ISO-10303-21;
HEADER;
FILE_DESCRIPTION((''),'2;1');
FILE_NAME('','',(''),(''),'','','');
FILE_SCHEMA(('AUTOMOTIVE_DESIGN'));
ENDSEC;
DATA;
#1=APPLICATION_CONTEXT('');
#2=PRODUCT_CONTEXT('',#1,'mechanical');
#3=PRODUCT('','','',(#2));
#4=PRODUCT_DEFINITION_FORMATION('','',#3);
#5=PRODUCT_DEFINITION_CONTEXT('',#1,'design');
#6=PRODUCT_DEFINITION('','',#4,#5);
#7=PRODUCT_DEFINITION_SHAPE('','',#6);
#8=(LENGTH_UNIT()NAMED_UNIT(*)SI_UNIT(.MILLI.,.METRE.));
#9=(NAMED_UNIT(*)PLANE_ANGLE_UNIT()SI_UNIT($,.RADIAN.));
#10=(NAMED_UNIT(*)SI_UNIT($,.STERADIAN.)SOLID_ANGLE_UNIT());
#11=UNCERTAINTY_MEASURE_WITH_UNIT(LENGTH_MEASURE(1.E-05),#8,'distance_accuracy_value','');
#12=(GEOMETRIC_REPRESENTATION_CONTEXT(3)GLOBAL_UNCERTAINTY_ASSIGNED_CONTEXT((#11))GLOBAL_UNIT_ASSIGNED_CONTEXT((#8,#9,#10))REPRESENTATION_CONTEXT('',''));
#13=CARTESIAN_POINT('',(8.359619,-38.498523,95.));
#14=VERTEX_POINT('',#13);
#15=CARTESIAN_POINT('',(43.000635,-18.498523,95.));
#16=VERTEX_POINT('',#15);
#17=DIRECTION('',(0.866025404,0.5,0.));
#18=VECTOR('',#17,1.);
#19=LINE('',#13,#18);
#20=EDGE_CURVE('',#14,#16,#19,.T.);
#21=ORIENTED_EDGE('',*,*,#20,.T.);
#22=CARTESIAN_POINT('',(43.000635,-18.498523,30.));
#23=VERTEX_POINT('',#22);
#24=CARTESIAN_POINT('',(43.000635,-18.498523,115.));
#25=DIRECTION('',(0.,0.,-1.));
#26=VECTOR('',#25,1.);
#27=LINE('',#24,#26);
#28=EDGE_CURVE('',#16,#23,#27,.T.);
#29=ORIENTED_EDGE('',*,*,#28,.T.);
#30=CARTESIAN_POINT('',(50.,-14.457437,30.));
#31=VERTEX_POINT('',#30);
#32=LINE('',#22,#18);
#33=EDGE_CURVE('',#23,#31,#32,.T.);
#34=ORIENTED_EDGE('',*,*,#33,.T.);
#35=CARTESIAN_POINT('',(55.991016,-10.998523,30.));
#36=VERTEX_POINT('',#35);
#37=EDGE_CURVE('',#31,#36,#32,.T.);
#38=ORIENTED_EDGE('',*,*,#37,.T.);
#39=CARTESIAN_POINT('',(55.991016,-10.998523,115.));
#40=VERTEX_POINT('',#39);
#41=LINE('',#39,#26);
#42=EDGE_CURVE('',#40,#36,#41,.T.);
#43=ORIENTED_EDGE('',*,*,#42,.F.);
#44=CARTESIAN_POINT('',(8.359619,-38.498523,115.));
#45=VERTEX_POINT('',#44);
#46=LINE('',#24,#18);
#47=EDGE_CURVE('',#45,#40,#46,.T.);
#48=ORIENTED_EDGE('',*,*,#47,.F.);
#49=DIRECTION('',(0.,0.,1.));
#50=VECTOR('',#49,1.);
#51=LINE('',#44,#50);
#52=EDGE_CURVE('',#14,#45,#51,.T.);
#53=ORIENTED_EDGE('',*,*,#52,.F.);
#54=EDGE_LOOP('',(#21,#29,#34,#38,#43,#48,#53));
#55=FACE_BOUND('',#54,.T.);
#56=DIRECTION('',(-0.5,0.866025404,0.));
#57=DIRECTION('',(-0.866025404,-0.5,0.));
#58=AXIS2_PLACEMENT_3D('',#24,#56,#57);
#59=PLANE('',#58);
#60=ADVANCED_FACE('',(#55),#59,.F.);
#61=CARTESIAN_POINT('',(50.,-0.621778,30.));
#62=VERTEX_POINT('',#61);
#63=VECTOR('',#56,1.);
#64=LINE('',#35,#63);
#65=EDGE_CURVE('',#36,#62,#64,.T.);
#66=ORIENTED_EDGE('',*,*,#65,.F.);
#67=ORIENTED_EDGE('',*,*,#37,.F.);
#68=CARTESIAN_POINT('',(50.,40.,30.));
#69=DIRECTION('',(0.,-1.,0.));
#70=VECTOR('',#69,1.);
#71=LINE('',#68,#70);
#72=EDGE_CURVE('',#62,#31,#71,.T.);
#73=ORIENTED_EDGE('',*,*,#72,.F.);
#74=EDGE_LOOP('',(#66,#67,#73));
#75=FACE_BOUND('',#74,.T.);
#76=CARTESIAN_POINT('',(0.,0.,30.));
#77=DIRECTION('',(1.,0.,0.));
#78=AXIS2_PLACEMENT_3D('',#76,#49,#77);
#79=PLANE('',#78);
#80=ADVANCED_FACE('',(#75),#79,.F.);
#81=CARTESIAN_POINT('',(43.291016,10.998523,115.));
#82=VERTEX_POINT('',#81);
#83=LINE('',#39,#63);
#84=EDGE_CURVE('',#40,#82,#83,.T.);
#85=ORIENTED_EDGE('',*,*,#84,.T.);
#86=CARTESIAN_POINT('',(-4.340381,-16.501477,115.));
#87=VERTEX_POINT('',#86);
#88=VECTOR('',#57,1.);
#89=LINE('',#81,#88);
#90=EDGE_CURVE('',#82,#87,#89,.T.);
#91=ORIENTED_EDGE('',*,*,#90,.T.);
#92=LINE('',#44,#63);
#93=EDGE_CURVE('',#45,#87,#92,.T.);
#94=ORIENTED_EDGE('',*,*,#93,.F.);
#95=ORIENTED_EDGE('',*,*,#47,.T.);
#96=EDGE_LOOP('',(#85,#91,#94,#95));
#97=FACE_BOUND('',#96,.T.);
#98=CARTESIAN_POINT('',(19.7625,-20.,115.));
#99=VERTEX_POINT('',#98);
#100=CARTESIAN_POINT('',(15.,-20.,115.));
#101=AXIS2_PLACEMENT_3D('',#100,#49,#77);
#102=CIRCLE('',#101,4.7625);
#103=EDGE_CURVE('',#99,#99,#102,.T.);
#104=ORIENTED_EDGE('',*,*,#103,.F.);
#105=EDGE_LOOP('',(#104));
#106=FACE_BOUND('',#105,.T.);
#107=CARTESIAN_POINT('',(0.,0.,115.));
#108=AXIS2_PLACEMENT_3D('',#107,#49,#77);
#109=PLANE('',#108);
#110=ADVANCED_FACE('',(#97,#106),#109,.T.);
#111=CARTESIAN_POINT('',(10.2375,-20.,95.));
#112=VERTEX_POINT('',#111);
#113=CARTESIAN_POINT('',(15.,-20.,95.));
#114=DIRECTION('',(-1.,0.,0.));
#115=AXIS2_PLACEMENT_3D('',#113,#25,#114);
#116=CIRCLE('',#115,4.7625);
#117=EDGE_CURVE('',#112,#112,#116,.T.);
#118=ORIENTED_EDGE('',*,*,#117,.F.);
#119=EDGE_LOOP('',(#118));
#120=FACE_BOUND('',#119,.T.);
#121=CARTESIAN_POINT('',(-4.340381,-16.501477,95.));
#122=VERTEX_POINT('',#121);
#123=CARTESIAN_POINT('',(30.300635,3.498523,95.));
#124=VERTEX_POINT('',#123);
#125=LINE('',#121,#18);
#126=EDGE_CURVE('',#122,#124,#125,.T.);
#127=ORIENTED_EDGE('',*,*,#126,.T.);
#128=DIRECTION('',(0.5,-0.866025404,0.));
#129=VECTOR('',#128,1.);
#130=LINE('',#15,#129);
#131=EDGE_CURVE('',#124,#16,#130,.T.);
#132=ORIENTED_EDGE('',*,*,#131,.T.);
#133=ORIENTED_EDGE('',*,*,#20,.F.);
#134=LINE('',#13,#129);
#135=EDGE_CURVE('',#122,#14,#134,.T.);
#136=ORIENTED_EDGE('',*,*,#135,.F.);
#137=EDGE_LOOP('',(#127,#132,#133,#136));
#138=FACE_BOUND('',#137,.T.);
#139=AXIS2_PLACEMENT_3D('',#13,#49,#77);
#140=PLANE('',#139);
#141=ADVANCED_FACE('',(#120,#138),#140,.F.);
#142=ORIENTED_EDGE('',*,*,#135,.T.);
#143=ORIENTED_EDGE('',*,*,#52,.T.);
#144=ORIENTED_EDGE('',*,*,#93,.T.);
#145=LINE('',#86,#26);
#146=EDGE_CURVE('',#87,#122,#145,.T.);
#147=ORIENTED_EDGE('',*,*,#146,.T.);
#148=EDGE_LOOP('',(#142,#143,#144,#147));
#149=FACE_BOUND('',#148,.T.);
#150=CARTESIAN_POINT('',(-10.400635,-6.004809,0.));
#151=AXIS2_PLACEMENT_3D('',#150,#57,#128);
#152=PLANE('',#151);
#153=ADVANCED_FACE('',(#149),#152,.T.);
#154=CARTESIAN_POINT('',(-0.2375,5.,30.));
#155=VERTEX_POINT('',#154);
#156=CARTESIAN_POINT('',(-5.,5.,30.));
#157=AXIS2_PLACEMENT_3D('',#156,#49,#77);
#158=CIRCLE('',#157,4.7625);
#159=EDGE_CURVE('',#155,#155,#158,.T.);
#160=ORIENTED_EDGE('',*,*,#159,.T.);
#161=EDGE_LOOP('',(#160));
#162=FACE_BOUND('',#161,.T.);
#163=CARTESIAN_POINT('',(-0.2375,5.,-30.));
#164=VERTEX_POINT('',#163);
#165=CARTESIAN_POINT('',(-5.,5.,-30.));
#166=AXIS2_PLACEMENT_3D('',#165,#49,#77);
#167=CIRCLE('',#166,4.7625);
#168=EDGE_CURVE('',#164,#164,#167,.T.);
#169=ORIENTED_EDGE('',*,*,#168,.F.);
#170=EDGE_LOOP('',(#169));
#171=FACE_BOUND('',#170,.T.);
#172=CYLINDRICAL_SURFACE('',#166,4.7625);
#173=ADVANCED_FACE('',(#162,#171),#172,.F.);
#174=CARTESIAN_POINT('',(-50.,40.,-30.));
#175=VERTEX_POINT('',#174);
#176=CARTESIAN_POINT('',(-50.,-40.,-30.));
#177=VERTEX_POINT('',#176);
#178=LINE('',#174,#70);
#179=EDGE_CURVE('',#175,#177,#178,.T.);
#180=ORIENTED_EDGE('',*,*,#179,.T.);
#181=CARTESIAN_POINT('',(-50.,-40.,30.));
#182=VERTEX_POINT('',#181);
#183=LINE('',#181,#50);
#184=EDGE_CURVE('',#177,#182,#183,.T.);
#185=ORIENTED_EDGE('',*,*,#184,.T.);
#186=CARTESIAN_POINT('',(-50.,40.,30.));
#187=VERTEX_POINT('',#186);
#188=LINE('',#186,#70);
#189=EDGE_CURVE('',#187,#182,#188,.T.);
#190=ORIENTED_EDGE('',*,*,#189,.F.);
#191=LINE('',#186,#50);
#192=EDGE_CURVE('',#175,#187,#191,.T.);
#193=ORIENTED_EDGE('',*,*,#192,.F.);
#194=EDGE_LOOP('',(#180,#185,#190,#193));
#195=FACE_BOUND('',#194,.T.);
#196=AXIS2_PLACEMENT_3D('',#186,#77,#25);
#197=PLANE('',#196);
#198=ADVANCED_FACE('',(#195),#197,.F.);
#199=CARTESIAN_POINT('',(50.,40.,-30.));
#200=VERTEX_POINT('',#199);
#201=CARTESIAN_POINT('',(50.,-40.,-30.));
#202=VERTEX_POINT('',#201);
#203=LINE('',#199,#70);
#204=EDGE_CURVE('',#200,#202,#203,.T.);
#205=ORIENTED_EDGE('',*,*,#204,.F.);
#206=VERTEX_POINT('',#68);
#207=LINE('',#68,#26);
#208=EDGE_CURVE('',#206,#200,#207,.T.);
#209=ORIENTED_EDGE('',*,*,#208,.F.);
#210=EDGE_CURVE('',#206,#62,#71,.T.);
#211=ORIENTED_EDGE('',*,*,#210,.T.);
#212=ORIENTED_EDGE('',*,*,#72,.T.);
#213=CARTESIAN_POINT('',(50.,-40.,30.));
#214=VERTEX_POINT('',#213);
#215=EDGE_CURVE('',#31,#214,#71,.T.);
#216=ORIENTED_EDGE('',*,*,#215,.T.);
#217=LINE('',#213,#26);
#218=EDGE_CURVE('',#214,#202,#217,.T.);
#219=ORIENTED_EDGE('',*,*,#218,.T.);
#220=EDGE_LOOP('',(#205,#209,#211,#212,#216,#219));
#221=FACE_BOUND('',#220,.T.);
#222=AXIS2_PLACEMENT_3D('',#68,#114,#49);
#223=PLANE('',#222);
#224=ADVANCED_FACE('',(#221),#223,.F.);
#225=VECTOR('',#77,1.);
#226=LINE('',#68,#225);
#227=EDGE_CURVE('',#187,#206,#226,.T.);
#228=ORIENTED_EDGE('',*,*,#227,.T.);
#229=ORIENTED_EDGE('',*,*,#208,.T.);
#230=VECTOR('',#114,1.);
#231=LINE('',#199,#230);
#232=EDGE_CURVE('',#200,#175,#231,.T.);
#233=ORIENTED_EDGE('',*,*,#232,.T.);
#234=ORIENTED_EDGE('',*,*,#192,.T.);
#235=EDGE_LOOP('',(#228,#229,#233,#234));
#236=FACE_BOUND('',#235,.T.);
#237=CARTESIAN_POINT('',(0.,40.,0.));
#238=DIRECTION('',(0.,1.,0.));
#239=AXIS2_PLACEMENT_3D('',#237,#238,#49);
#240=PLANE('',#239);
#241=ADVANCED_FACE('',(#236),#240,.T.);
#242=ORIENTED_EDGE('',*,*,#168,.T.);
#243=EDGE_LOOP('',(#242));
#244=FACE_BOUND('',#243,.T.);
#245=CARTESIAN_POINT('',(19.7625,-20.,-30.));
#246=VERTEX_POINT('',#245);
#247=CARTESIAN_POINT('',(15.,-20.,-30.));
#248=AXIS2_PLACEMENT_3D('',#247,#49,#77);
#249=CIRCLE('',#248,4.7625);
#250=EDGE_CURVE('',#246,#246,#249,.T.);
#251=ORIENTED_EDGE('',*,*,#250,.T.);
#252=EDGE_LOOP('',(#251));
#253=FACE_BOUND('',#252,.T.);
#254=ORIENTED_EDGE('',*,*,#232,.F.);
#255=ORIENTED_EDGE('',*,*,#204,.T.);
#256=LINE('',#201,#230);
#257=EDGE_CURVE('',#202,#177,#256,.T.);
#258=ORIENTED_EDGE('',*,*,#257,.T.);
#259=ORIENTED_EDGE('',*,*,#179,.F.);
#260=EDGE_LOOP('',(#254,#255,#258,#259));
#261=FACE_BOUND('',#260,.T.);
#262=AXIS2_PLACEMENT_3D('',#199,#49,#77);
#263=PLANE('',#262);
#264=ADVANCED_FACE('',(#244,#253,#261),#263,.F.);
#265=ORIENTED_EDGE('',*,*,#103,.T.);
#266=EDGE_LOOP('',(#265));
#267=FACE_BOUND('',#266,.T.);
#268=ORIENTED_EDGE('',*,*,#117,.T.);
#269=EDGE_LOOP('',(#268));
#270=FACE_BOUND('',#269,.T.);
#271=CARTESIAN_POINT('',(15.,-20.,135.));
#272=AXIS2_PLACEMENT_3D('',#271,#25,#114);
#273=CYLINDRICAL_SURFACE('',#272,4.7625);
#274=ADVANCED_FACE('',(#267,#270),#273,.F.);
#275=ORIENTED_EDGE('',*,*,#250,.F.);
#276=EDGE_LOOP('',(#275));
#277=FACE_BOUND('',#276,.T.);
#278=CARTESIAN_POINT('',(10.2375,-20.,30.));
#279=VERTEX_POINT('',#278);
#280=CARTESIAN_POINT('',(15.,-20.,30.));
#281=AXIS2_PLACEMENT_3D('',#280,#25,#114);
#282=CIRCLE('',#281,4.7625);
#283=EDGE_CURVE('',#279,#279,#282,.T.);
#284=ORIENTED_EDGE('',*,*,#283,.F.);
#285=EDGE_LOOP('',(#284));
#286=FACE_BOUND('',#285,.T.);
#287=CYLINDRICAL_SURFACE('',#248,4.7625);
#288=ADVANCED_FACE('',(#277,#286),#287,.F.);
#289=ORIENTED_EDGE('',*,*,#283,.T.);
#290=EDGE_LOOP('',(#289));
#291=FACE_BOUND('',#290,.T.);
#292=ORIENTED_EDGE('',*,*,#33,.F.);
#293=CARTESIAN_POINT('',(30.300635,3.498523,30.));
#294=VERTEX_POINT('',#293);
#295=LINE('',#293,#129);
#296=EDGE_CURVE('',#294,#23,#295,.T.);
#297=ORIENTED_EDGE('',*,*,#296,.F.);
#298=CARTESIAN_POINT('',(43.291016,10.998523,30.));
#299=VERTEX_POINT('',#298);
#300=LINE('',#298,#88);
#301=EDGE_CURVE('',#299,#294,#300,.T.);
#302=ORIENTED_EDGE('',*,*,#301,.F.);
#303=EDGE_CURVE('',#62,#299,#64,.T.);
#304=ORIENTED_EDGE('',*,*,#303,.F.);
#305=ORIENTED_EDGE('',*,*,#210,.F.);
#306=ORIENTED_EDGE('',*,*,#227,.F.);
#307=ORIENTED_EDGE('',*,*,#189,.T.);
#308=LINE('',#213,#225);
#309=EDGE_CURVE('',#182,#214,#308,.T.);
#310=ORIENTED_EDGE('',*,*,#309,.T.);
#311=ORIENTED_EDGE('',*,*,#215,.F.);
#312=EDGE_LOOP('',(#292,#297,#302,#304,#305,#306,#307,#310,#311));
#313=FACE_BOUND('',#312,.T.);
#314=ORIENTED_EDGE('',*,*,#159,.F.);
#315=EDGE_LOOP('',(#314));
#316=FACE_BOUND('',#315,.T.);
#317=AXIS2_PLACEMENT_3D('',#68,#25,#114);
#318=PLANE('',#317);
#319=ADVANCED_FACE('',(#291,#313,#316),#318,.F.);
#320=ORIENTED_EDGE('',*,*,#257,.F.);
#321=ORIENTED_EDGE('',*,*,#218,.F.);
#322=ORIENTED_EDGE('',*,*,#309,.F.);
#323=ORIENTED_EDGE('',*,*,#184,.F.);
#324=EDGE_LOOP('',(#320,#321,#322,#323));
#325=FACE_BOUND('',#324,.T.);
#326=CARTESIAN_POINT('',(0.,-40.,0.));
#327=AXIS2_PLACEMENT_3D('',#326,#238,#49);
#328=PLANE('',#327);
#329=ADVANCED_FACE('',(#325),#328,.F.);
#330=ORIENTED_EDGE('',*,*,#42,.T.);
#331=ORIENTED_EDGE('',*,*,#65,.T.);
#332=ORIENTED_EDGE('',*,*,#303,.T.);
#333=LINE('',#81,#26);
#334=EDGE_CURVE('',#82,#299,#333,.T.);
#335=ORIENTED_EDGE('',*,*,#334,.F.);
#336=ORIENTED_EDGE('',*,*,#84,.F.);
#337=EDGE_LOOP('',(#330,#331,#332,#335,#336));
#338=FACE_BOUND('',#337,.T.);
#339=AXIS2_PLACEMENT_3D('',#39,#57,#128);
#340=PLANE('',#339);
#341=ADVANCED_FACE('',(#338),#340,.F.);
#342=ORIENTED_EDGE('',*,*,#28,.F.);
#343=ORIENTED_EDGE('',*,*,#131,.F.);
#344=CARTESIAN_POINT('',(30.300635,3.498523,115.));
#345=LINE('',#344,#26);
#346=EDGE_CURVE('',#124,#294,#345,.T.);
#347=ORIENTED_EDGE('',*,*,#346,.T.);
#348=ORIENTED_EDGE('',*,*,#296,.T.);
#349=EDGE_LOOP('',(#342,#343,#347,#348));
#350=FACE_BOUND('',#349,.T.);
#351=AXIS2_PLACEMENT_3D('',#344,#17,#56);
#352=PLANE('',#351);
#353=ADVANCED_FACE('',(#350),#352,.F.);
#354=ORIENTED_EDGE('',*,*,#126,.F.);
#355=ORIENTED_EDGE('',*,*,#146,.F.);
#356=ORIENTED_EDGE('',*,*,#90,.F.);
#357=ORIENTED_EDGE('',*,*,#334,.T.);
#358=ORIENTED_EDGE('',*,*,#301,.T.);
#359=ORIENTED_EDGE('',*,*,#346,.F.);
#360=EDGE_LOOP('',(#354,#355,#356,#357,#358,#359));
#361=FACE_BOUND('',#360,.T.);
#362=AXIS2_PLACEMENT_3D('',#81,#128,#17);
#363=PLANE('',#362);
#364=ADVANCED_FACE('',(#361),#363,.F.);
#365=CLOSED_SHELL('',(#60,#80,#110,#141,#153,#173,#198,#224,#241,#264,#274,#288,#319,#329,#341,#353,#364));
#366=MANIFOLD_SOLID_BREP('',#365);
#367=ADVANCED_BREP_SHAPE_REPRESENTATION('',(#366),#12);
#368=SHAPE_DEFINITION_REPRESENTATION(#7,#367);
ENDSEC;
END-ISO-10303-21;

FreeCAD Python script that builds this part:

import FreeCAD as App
import Part
import Sketcher

V = App.Vector
Q = App.Units.Quantity

doc = App.newDocument("Part")
body = doc.addObject("PartDesign::Body", "Body")

# Sketch on XZ plane
sketch1 = body.newObject("Sketcher::SketchObject", "Sketch")
sketch1.AttachmentSupport = (doc.getObject("XZ_Plane"), [""])
sketch1.MapMode = "FlatFace"
sketch1.addGeometry([
    Part.LineSegment(V(-50, -30, 0), V(-50, 30, 0)),
    Part.LineSegment(V(-50, 30, 0), V(50, 30, 0)),
    Part.LineSegment(V(50, 30, 0), V(50, -30, 0)),
    Part.LineSegment(V(50, -30, 0), V(-50, -30, 0)),
], False)
sketch1.addConstraint([
    Sketcher.Constraint("Coincident", 0, 2, 1, 1),
    Sketcher.Constraint("Coincident", 1, 2, 2, 1),
    Sketcher.Constraint("Coincident", 2, 2, 3, 1),
    Sketcher.Constraint("Coincident", 3, 2, 0, 1),
    Sketcher.Constraint("Vertical", 0),
    Sketcher.Constraint("Horizontal", 1),
    Sketcher.Constraint("Vertical", 2),
    Sketcher.Constraint("Horizontal", 3),
    Sketcher.Constraint("Symmetric", 0, 2, 2, 2, -1, 1),
    Sketcher.Constraint("DistanceX", 1, 1, 1, 2, Q("100 mm")),
    Sketcher.Constraint("DistanceY", 0, 1, 0, 2, Q("60 mm")),
])
pad1 = body.newObject("PartDesign::Pad", "Pad")
pad1.Profile = sketch1
pad1.Length = 80
pad1.Midplane = True

# Sketch on XY plane
sketch2 = body.newObject("Sketcher::SketchObject", "Sketch001")
sketch2.AttachmentSupport = (doc.getObject("XY_Plane"), [""])
sketch2.MapMode = "FlatFace"
sketch2.AttachmentOffset = App.Placement(V(0, 0, 30), App.Rotation())
sketch2.addGeometry([
    Part.LineSegment(V(43.291016, 10.998523, 0), V(30.300635, 3.498523, 0)),
    Part.LineSegment(V(30.300635, 3.498523, 0), V(43.000635, -18.498523, 0)),
    Part.LineSegment(V(43.000635, -18.498523, 0), V(55.991016, -10.998523, 0)),
    Part.LineSegment(V(55.991016, -10.998523, 0), V(43.291016, 10.998523, 0)),
], False)
sketch2.addConstraint([
    Sketcher.Constraint("Coincident", 0, 2, 1, 1),
    Sketcher.Constraint("Coincident", 1, 2, 2, 1),
    Sketcher.Constraint("Coincident", 2, 2, 3, 1),
    Sketcher.Constraint("Coincident", 3, 2, 0, 1),
    Sketcher.Constraint("Perpendicular", 0, 1),
    Sketcher.Constraint("Perpendicular", 1, 2),
    Sketcher.Constraint("Perpendicular", 2, 3),
    Sketcher.Constraint("Angle", 0, Q("-150 deg")),
    Sketcher.Constraint("Distance", 0, Q("15 mm")),
    Sketcher.Constraint("Distance", 1, Q("25.4 mm")),
    Sketcher.Constraint("DistanceX", -1, 1, 0, 2, Q("30.300635 mm")),
    Sketcher.Constraint("DistanceY", -1, 1, 0, 2, Q("3.498523 mm")),
])
pad2 = body.newObject("PartDesign::Pad", "Pad001")
pad2.Profile = sketch2
pad2.Length = 85

# Sketch on XY plane
sketch3 = body.newObject("Sketcher::SketchObject", "Sketch002")
sketch3.AttachmentSupport = (doc.getObject("XY_Plane"), [""])
sketch3.MapMode = "FlatFace"
sketch3.AttachmentOffset = App.Placement(V(0, 0, 30), App.Rotation())
sketch3.addGeometry(Part.Circle(V(15, -20, 0), V(0, 0, 1), 4.7625), False)
sketch3.addConstraint([
    Sketcher.Constraint("Diameter", 0, Q("9.525 mm")),
    Sketcher.Constraint("DistanceX", -1, 1, 0, 3, Q("15 mm")),
    Sketcher.Constraint("DistanceY", 0, 3, -1, 1, Q("20 mm")),
])
pocket1 = body.newObject("PartDesign::Pocket", "Pocket")
pocket1.Profile = sketch3
pocket1.Type = "ThroughAll"
pocket1.Midplane = True

# Sketch on an angled plane
sketch4 = body.newObject("Sketcher::SketchObject", "Sketch003")
sketch4.Placement = App.Placement(V(24.240381, 13.995191, 0), App.Rotation(V(0, 0, 1), V(-0.5, 0.866025404, 0), V(-0.866025404, -0.5, 0), "ZXY"))
sketch4.addGeometry([
    Part.LineSegment(V(95, -12.120508, 0), V(95, -37.520508, 0)),
    Part.LineSegment(V(95, -37.520508, 0), V(115, -37.520508, 0)),
    Part.LineSegment(V(115, -37.520508, 0), V(115, -12.120508, 0)),
    Part.LineSegment(V(115, -12.120508, 0), V(95, -12.120508, 0)),
], False)
sketch4.addConstraint([
    Sketcher.Constraint("Coincident", 0, 2, 1, 1),
    Sketcher.Constraint("Coincident", 1, 2, 2, 1),
    Sketcher.Constraint("Coincident", 2, 2, 3, 1),
    Sketcher.Constraint("Coincident", 3, 2, 0, 1),
    Sketcher.Constraint("Vertical", 0),
    Sketcher.Constraint("Horizontal", 1),
    Sketcher.Constraint("Vertical", 2),
    Sketcher.Constraint("Horizontal", 3),
    Sketcher.Constraint("DistanceX", 1, 1, 1, 2, Q("20 mm")),
    Sketcher.Constraint("DistanceY", 0, 2, 0, 1, Q("25.4 mm")),
    Sketcher.Constraint("DistanceX", -1, 1, 0, 2, Q("95 mm")),
    Sketcher.Constraint("DistanceY", 0, 2, -1, 1, Q("37.520508 mm")),
])
pad3 = body.newObject("PartDesign::Pad", "Pad002")
pad3.Profile = sketch4
pad3.Length = 40

# Sketch on XY plane
sketch5 = body.newObject("Sketcher::SketchObject", "Sketch004")
sketch5.AttachmentSupport = (doc.getObject("XY_Plane"), [""])
sketch5.MapMode = "FlatFace"
sketch5.AttachmentOffset = App.Placement(V(0, 0, 30), App.Rotation())
sketch5.addGeometry(Part.Circle(V(-5, 5, 0), V(0, 0, 1), 4.7625), False)
sketch5.addConstraint([
    Sketcher.Constraint("Diameter", 0, Q("9.525 mm")),
    Sketcher.Constraint("DistanceX", 0, 3, -1, 1, Q("5 mm")),
    Sketcher.Constraint("DistanceY", -1, 1, 0, 3, Q("5 mm")),
])
pocket2 = body.newObject("PartDesign::Pocket", "Pocket001")
pocket2.Profile = sketch5
pocket2.Type = "ThroughAll"
pocket2.Midplane = True

# Sketch on XY plane
sketch6 = body.newObject("Sketcher::SketchObject", "Sketch005")
sketch6.AttachmentSupport = (doc.getObject("XY_Plane"), [""])
sketch6.MapMode = "FlatFace"
sketch6.AttachmentOffset = App.Placement(V(0, 0, 135), App.Rotation())
sketch6.addGeometry(Part.Circle(V(15, -20, 0), V(0, 0, 1), 4.7625), False)
sketch6.addConstraint([
    Sketcher.Constraint("Diameter", 0, Q("9.525 mm")),
    Sketcher.Constraint("DistanceX", -1, 1, 0, 3, Q("15 mm")),
    Sketcher.Constraint("DistanceY", 0, 3, -1, 1, Q("20 mm")),
])
pocket3 = body.newObject("PartDesign::Pocket", "Pocket002")
pocket3.Profile = sketch6
pocket3.Length = 40

doc.recompute()
